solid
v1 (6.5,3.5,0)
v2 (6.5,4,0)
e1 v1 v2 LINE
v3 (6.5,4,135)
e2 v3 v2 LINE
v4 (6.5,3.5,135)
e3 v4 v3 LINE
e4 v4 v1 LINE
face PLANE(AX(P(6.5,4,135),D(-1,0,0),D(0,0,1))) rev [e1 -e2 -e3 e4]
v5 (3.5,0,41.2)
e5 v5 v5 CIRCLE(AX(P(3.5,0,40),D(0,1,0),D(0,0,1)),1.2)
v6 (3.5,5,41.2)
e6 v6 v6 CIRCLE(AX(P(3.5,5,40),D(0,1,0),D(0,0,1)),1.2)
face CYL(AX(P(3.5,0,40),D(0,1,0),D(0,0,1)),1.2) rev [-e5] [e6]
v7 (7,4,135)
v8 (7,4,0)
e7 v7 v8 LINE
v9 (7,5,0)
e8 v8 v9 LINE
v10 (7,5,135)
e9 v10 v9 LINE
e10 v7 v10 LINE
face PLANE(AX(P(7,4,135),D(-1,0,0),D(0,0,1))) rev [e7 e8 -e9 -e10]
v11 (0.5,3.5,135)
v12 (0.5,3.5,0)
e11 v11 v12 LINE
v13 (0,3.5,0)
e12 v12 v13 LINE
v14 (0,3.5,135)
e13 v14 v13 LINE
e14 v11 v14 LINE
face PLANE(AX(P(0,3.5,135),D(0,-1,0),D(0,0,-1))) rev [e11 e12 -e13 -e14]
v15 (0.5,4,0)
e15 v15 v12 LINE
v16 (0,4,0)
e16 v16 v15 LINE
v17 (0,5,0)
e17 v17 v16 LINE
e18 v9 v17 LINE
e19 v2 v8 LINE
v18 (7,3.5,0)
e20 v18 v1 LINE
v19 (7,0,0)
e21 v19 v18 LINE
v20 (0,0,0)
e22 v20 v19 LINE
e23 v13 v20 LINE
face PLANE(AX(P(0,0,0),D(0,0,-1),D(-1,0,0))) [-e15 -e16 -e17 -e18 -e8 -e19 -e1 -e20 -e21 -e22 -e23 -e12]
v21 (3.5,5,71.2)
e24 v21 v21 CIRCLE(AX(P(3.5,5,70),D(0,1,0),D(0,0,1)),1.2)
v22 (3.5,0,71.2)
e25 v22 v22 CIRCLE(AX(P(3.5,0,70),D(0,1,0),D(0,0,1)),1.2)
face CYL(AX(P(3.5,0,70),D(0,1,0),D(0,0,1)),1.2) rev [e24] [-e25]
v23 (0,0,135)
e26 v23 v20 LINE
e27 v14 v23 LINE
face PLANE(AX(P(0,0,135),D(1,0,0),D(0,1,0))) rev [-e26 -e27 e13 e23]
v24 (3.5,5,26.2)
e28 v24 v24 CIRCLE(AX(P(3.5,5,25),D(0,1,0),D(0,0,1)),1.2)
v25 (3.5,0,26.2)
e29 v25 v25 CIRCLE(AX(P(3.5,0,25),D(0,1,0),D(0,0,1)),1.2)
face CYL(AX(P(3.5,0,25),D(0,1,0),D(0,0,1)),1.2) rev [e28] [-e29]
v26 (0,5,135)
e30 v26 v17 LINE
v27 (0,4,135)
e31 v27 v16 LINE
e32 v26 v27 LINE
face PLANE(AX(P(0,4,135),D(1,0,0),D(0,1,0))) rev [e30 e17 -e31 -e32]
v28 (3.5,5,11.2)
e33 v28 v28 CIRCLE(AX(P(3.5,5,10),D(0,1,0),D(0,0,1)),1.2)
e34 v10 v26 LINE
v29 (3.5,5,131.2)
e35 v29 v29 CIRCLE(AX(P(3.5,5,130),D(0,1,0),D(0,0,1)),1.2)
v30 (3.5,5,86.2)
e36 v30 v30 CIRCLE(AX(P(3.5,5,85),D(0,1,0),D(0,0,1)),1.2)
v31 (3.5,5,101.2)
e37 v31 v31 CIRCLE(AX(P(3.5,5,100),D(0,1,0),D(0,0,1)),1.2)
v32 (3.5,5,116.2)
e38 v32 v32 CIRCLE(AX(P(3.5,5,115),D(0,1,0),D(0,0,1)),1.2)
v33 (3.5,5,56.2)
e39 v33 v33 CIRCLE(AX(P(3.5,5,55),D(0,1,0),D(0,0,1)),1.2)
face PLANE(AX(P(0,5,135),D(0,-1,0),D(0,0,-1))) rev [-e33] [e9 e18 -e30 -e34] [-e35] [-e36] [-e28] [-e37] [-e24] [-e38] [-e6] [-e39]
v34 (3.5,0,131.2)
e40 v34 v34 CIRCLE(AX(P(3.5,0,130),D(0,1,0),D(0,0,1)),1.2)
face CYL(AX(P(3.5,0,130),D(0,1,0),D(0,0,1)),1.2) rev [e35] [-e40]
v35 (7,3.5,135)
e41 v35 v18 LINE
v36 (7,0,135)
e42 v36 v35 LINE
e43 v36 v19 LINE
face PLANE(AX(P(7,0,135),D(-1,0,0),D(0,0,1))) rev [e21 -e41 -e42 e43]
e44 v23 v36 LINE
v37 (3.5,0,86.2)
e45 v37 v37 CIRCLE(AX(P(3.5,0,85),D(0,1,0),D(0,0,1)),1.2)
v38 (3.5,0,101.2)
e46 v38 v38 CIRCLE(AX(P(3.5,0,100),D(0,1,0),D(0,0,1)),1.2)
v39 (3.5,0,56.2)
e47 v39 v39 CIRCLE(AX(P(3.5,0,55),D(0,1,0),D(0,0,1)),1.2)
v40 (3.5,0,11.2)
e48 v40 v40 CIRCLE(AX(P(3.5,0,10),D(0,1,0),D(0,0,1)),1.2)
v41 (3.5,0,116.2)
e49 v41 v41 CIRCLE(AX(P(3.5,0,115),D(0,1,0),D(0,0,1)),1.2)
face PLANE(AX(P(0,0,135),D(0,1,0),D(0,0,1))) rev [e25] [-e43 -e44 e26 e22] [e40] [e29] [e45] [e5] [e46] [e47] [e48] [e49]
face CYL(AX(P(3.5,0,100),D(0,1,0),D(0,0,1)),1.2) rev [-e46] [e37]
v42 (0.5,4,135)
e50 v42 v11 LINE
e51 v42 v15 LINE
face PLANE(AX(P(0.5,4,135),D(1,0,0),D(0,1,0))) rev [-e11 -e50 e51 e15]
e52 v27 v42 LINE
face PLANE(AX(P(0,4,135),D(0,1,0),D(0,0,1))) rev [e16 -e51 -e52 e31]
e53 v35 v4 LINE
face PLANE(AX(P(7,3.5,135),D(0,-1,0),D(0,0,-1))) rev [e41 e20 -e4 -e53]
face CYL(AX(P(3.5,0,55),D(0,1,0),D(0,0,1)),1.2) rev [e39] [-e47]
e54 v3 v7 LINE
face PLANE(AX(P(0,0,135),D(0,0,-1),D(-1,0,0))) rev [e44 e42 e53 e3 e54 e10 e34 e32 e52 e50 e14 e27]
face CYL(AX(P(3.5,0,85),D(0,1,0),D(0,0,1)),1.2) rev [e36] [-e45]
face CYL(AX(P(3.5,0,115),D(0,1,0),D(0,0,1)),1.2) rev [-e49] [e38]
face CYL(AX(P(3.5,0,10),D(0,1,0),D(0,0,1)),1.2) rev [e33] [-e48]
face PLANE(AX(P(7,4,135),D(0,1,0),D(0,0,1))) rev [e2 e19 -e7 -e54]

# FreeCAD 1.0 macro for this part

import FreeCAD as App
import Part
import Sketcher
from FreeCAD import Vector
Q = App.Units.Quantity

doc = App.newDocument("Part")
body = doc.addObject("PartDesign::Body", "Body")

# Sketch on XY plane
sketch1 = body.newObject("Sketcher::SketchObject", "Sketch")
sketch1.AttachmentSupport = (doc.getObject("XY_Plane"), [""])
sketch1.MapMode = "FlatFace"
sketch1.addGeometry(Part.LineSegment(Vector(0, 5, 0), Vector(0, 4, 0)), False)
sketch1.addGeometry(Part.LineSegment(Vector(0, 4, 0), Vector(0.5, 4, 0)), False)
sketch1.addGeometry(Part.LineSegment(Vector(0.5, 4, 0), Vector(0.5, 3.5, 0)), False)
sketch1.addGeometry(Part.LineSegment(Vector(0.5, 3.5, 0), Vector(0, 3.5, 0)), False)
sketch1.addGeometry(Part.LineSegment(Vector(0, 3.5, 0), Vector(0, 0, 0)), False)
sketch1.addGeometry(Part.LineSegment(Vector(0, 0, 0), Vector(7, 0, 0)), False)
sketch1.addGeometry(Part.LineSegment(Vector(7, 0, 0), Vector(7, 3.5, 0)), False)
sketch1.addGeometry(Part.LineSegment(Vector(7, 3.5, 0), Vector(6.5, 3.5, 0)), False)
sketch1.addGeometry(Part.LineSegment(Vector(6.5, 3.5, 0), Vector(6.5, 4, 0)), False)
sketch1.addGeometry(Part.LineSegment(Vector(6.5, 4, 0), Vector(7, 4, 0)), False)
sketch1.addGeometry(Part.LineSegment(Vector(7, 4, 0), Vector(7, 5, 0)), False)
sketch1.addGeometry(Part.LineSegment(Vector(7, 5, 0), Vector(0, 5, 0)), False)
sketch1.addConstraint(Sketcher.Constraint("Coincident", 0, 2, 1, 1))
sketch1.addConstraint(Sketcher.Constraint("Coincident", 1, 2, 2, 1))
sketch1.addConstraint(Sketcher.Constraint("Coincident", 2, 2, 3, 1))
sketch1.addConstraint(Sketcher.Constraint("Coincident", 3, 2, 4, 1))
sketch1.addConstraint(Sketcher.Constraint("Coincident", 4, 2, 5, 1))
sketch1.addConstraint(Sketcher.Constraint("Coincident", 5, 2, 6, 1))
sketch1.addConstraint(Sketcher.Constraint("Coincident", 6, 2, 7, 1))
sketch1.addConstraint(Sketcher.Constraint("Coincident", 7, 2, 8, 1))
sketch1.addConstraint(Sketcher.Constraint("Coincident", 8, 2, 9, 1))
sketch1.addConstraint(Sketcher.Constraint("Coincident", 9, 2, 10, 1))
sketch1.addConstraint(Sketcher.Constraint("Coincident", 10, 2, 11, 1))
sketch1.addConstraint(Sketcher.Constraint("Coincident", 11, 2, 0, 1))
sketch1.addConstraint(Sketcher.Constraint("Vertical", 0))
sketch1.addConstraint(Sketcher.Constraint("Horizontal", 1))
sketch1.addConstraint(Sketcher.Constraint("Vertical", 2))
sketch1.addConstraint(Sketcher.Constraint("Horizontal", 3))
sketch1.addConstraint(Sketcher.Constraint("Vertical", 4))
sketch1.addConstraint(Sketcher.Constraint("Horizontal", 5))
sketch1.addConstraint(Sketcher.Constraint("Vertical", 6))
sketch1.addConstraint(Sketcher.Constraint("Horizontal", 7))
sketch1.addConstraint(Sketcher.Constraint("Vertical", 8))
sketch1.addConstraint(Sketcher.Constraint("Horizontal", 9))
sketch1.addConstraint(Sketcher.Constraint("Vertical", 10))
sketch1.addConstraint(Sketcher.Constraint("Horizontal", 11))
sketch1.addConstraint(Sketcher.Constraint("Coincident", 4, 2, -1, 1))
sketch1.addConstraint(Sketcher.Constraint("PointOnObject", 0, 2, -2))
sketch1.addConstraint(Sketcher.Constraint("Horizontal", 3, 2, 6, 2))
sketch1.addConstraint(Sketcher.Constraint("Horizontal", 1, 2, 8, 2))
sketch1.addConstraint(Sketcher.Constraint("Vertical", 6, 2, 9, 2))
sketch1.addConstraint(Sketcher.Constraint("Equal", 3, 7))
sketch1.addConstraint(Sketcher.Constraint("Equal", 9, 2))
sketch1.addConstraint(Sketcher.Constraint("DistanceX", 5, 1, 5, 2, Q("7 mm")))
sketch1.addConstraint(Sketcher.Constraint("DistanceY", 0, 2, 0, 1, Q("1 mm")))
sketch1.addConstraint(Sketcher.Constraint("DistanceX", 1, 1, 1, 2, Q("0.5 mm")))
sketch1.addConstraint(Sketcher.Constraint("DistanceY", 4, 2, 4, 1, Q("3.5 mm")))
pad1 = body.newObject("PartDesign::Pad", "Pad")
pad1.Profile = sketch1
pad1.Length = 135

# Sketch on XZ plane
sketch2 = body.newObject("Sketcher::SketchObject", "Sketch001")
sketch2.AttachmentSupport = (doc.getObject("XZ_Plane"), [""])
sketch2.MapMode = "FlatFace"
sketch2.AttachmentOffset = App.Placement(Vector(0, 0, -5), App.Rotation())
sketch2.addGeometry(Part.Circle(Vector(3.5, 130, 0), Vector(0, 0, 1), 1.2), False)
sketch2.addGeometry(Part.Circle(Vector(3.5, 115, 0), Vector(0, 0, 1), 1.2), False)
sketch2.addGeometry(Part.Circle(Vector(3.5, 100, 0), Vector(0, 0, 1), 1.2), False)
sketch2.addGeometry(Part.Circle(Vector(3.5, 85, 0), Vector(0, 0, 1), 1.2), False)
sketch2.addGeometry(Part.Circle(Vector(3.5, 70, 0), Vector(0, 0, 1), 1.2), False)
sketch2.addGeometry(Part.Circle(Vector(3.5, 55, 0), Vector(0, 0, 1), 1.2), False)
sketch2.addGeometry(Part.Circle(Vector(3.5, 40, 0), Vector(0, 0, 1), 1.2), False)
sketch2.addGeometry(Part.Circle(Vector(3.5, 25, 0), Vector(0, 0, 1), 1.2), False)
sketch2.addGeometry(Part.Circle(Vector(3.5, 10, 0), Vector(0, 0, 1), 1.2), False)
sketch2.addGeometry(Part.Circle(Vector(3.5, -5, 0), Vector(0, 0, 1), 1.2), False)
sketch2.addGeometry(Part.Circle(Vector(3.5, -20, 0), Vector(0, 0, 1), 1.2), False)
sketch2.addGeometry(Part.Circle(Vector(3.5, -35, 0), Vector(0, 0, 1), 1.2), False)
sketch2.addGeometry(Part.Circle(Vector(3.5, -50, 0), Vector(0, 0, 1), 1.2), False)
sketch2.addConstraint(Sketcher.Constraint("Equal", 0, 1))
sketch2.addConstraint(Sketcher.Constraint("Equal", 1, 2))
sketch2.addConstraint(Sketcher.Constraint("Equal", 2, 3))
sketch2.addConstraint(Sketcher.Constraint("Equal", 3, 4))
sketch2.addConstraint(Sketcher.Constraint("Equal", 4, 5))
sketch2.addConstraint(Sketcher.Constraint("Equal", 5, 6))
sketch2.addConstraint(Sketcher.Constraint("Equal", 6, 7))
sketch2.addConstraint(Sketcher.Constraint("Equal", 7, 8))
sketch2.addConstraint(Sketcher.Constraint("Equal", 8, 9))
sketch2.addConstraint(Sketcher.Constraint("Equal", 9, 10))
sketch2.addConstraint(Sketcher.Constraint("Equal", 10, 11))
sketch2.addConstraint(Sketcher.Constraint("Equal", 11, 12))
sketch2.addConstraint(Sketcher.Constraint("Vertical", 0, 3, 1, 3))
sketch2.addConstraint(Sketcher.Constraint("Vertical", 1, 3, 2, 3))
sketch2.addConstraint(Sketcher.Constraint("Vertical", 2, 3, 3, 3))
sketch2.addConstraint(Sketcher.Constraint("Vertical", 3, 3, 4, 3))
sketch2.addConstraint(Sketcher.Constraint("Vertical", 4, 3, 5, 3))
sketch2.addConstraint(Sketcher.Constraint("Vertical", 5, 3, 6, 3))
sketch2.addConstraint(Sketcher.Constraint("Vertical", 6, 3, 7, 3))
sketch2.addConstraint(Sketcher.Constraint("Vertical", 7, 3, 8, 3))
sketch2.addConstraint(Sketcher.Constraint("Vertical", 8, 3, 9, 3))
sketch2.addConstraint(Sketcher.Constraint("Vertical", 9, 3, 10, 3))
sketch2.addConstraint(Sketcher.Constraint("Vertical", 10, 3, 11, 3))
sketch2.addConstraint(Sketcher.Constraint("Vertical", 11, 3, 12, 3))
sketch2.addConstraint(Sketcher.Constraint("Diameter", 0, Q("2.4 mm")))
sketch2.addConstraint(Sketcher.Constraint("DistanceY", -1, 1, 0, 3, Q("130 mm")))
sketch2.addConstraint(Sketcher.Constraint("DistanceY", -1, 1, 1, 3, Q("115 mm")))
sketch2.addConstraint(Sketcher.Constraint("DistanceY", -1, 1, 2, 3, Q("100 mm")))
sketch2.addConstraint(Sketcher.Constraint("DistanceY", -1, 1, 3, 3, Q("85 mm")))
sketch2.addConstraint(Sketcher.Constraint("DistanceY", -1, 1, 4, 3, Q("70 mm")))
sketch2.addConstraint(Sketcher.Constraint("DistanceY", -1, 1, 5, 3, Q("55 mm")))
sketch2.addConstraint(Sketcher.Constraint("DistanceY", -1, 1, 6, 3, Q("40 mm")))
sketch2.addConstraint(Sketcher.Constraint("DistanceY", -1, 1, 7, 3, Q("25 mm")))
sketch2.addConstraint(Sketcher.Constraint("DistanceY", -1, 1, 8, 3, Q("10 mm")))
sketch2.addConstraint(Sketcher.Constraint("DistanceY", 9, 3, -1, 1, Q("5 mm")))
sketch2.addConstraint(Sketcher.Constraint("DistanceY", 10, 3, -1, 1, Q("20 mm")))
sketch2.addConstraint(Sketcher.Constraint("DistanceY", 11, 3, -1, 1, Q("35 mm")))
sketch2.addConstraint(Sketcher.Constraint("DistanceY", 12, 3, -1, 1, Q("50 mm")))
sketch2.addConstraint(Sketcher.Constraint("DistanceX", -1, 1, 0, 3, Q("3.5 mm")))
pocket1 = body.newObject("PartDesign::Pocket", "Pocket")
pocket1.Profile = sketch2
pocket1.Type = "ThroughAll"
pocket1.Reversed = True

doc.recompute()
